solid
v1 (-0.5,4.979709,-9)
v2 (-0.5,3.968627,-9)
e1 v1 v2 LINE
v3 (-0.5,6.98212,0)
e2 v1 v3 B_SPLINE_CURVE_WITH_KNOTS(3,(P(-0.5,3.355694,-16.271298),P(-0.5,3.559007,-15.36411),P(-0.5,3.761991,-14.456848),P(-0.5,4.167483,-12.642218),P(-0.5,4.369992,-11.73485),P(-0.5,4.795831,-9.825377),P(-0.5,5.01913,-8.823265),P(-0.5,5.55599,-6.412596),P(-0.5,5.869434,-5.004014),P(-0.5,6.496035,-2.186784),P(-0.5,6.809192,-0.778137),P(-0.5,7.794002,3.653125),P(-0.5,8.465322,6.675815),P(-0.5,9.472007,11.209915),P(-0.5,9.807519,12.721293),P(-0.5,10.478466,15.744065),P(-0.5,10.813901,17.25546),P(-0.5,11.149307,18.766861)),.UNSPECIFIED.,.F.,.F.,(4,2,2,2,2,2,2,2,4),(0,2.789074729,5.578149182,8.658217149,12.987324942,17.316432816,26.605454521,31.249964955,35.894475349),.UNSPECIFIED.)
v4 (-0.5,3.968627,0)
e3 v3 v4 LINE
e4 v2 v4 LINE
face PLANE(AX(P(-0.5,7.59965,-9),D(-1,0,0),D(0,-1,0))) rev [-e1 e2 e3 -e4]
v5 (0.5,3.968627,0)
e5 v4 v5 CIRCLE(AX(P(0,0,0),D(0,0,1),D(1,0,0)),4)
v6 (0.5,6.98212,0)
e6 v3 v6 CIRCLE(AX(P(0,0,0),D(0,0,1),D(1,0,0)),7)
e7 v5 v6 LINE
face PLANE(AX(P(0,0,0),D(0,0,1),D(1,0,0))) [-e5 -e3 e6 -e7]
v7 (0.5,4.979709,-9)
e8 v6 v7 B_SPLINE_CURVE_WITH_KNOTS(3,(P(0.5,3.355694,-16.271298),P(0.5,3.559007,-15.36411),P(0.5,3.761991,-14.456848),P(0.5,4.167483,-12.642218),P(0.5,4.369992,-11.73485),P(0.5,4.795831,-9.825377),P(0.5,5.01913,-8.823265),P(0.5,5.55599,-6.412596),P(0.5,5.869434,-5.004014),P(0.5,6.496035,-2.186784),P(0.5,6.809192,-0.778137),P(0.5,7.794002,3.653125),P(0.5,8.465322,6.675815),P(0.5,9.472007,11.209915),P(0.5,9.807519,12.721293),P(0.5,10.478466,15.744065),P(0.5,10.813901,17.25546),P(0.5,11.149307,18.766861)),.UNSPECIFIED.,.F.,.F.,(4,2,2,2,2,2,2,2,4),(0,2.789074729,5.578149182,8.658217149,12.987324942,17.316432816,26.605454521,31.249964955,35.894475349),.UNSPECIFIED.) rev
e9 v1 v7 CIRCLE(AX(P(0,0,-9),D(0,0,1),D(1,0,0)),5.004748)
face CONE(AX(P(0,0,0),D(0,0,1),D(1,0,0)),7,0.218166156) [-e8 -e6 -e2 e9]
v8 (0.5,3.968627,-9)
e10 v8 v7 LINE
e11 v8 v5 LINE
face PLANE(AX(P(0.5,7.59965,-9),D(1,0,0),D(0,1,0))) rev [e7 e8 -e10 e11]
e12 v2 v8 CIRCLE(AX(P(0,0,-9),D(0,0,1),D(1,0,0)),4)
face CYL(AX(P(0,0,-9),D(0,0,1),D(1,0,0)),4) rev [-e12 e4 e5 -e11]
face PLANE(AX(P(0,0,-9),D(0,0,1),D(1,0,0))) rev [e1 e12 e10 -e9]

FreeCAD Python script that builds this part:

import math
import FreeCAD as App
import Part
import Sketcher
from FreeCAD import Vector
Q = App.Units.Quantity


def faces_at(feature, points):
    """Names of the faces that lie closest to the given points."""
    faces = feature.Shape.Faces
    near = lambda p: min(range(len(faces)), key=lambda i: faces[i].distToShape(Part.Vertex(*p))[0])
    return sorted({f"Face{near(p) + 1}" for p in points})

doc = App.newDocument("Part")
params = doc.addObject("Spreadsheet::Sheet", "Params")
for row, (alias, value) in enumerate([
    ("sketch1_diameter", "14 mm"),
    ("pad1_length", "9 mm"),
    ("draft_angle", "12.5 deg"),
    ("sketch2_radius", "4 mm"),
    ("sketch2_width", "1 mm"),
], start=1):
    params.set(f"A{row}", alias)
    params.set(f"B{row}", "=" + value)
    params.setAlias(f"B{row}", alias)

body = doc.addObject("PartDesign::Body", "Body")

sketch1 = doc.addObject("Sketcher::SketchObject", "Sketch")
body.addObject(sketch1)
sketch1.AttachmentSupport = (doc.XY_Plane, [""])
sketch1.MapMode = "FlatFace"
sketch1.addGeometry(Part.Circle(Vector(0, 0, 0), Vector(0, 0, 1), 7), False)
sketch1.addConstraint([
    Sketcher.Constraint("Coincident", 0, 3, -1, 1),
    Sketcher.Constraint("Diameter", 0, Q("14 mm")),
])
sketch1.setExpression("Constraints[1]", "Params.sketch1_diameter")
pad1 = doc.addObject("PartDesign::Pad", "Pad")
body.addObject(pad1)
pad1.Profile = sketch1
pad1.setExpression("Length", "Params.pad1_length")
pad1.Reversed = True
doc.recompute()

draft = doc.addObject("PartDesign::Draft", "Draft")
body.addObject(draft)
draft.Base = (pad1, faces_at(pad1, [(-7, 0, -4.5)]))
draft.NeutralPlane = (doc.XY_Plane, [""])
draft.setExpression("Angle", "Params.draft_angle")
draft.Reversed = True

sketch2 = doc.addObject("Sketcher::SketchObject", "Sketch001")
body.addObject(sketch2)
sketch2.AttachmentSupport = (doc.XY_Plane, [""])
sketch2.MapMode = "FlatFace"
sketch2.addGeometry([
    Part.LineSegment(Vector(0.5, 7.6, 0), Vector(-0.5, 7.6, 0)),
    Part.LineSegment(Vector(-0.5, 7.6, 0), Vector(-0.5, 4, 0)),
    Part.ArcOfCircle(Part.Circle(Vector(0, 0, 0), Vector(0, 0, 1), 4), math.radians(97), math.radians(443)),
    Part.LineSegment(Vector(0.5, 4, 0), Vector(0.5, 7.6, 0)),
], False)
sketch2.addConstraint([
    Sketcher.Constraint("Coincident", 0, 2, 1, 1),
    Sketcher.Constraint("Coincident", 1, 2, 2, 1),
    Sketcher.Constraint("Coincident", 2, 2, 3, 1),
    Sketcher.Constraint("Coincident", 3, 2, 0, 1),
    Sketcher.Constraint("Horizontal", 0),
    Sketcher.Constraint("Vertical", 1),
    Sketcher.Constraint("Vertical", 3),
    Sketcher.Constraint("Coincident", 2, 3, -1, 1),
    Sketcher.Constraint("Horizontal", 1, 2, 2, 2),
    Sketcher.Constraint("Radius", 2, Q("4 mm")),
    Sketcher.Constraint("DistanceX", 0, 2, 0, 1, Q("1 mm")),
    Sketcher.Constraint("DistanceY", 1, 2, 1, 1, Q("3.631023 mm")),
])
sketch2.setExpression("Constraints[9]", "Params.sketch2_radius")
sketch2.setExpression("Constraints[10]", "Params.sketch2_width")
pocket1 = doc.addObject("PartDesign::Pocket", "Pocket")
body.addObject(pocket1)
pocket1.Profile = sketch2
pocket1.Type = "ThroughAll"

doc.recompute()
